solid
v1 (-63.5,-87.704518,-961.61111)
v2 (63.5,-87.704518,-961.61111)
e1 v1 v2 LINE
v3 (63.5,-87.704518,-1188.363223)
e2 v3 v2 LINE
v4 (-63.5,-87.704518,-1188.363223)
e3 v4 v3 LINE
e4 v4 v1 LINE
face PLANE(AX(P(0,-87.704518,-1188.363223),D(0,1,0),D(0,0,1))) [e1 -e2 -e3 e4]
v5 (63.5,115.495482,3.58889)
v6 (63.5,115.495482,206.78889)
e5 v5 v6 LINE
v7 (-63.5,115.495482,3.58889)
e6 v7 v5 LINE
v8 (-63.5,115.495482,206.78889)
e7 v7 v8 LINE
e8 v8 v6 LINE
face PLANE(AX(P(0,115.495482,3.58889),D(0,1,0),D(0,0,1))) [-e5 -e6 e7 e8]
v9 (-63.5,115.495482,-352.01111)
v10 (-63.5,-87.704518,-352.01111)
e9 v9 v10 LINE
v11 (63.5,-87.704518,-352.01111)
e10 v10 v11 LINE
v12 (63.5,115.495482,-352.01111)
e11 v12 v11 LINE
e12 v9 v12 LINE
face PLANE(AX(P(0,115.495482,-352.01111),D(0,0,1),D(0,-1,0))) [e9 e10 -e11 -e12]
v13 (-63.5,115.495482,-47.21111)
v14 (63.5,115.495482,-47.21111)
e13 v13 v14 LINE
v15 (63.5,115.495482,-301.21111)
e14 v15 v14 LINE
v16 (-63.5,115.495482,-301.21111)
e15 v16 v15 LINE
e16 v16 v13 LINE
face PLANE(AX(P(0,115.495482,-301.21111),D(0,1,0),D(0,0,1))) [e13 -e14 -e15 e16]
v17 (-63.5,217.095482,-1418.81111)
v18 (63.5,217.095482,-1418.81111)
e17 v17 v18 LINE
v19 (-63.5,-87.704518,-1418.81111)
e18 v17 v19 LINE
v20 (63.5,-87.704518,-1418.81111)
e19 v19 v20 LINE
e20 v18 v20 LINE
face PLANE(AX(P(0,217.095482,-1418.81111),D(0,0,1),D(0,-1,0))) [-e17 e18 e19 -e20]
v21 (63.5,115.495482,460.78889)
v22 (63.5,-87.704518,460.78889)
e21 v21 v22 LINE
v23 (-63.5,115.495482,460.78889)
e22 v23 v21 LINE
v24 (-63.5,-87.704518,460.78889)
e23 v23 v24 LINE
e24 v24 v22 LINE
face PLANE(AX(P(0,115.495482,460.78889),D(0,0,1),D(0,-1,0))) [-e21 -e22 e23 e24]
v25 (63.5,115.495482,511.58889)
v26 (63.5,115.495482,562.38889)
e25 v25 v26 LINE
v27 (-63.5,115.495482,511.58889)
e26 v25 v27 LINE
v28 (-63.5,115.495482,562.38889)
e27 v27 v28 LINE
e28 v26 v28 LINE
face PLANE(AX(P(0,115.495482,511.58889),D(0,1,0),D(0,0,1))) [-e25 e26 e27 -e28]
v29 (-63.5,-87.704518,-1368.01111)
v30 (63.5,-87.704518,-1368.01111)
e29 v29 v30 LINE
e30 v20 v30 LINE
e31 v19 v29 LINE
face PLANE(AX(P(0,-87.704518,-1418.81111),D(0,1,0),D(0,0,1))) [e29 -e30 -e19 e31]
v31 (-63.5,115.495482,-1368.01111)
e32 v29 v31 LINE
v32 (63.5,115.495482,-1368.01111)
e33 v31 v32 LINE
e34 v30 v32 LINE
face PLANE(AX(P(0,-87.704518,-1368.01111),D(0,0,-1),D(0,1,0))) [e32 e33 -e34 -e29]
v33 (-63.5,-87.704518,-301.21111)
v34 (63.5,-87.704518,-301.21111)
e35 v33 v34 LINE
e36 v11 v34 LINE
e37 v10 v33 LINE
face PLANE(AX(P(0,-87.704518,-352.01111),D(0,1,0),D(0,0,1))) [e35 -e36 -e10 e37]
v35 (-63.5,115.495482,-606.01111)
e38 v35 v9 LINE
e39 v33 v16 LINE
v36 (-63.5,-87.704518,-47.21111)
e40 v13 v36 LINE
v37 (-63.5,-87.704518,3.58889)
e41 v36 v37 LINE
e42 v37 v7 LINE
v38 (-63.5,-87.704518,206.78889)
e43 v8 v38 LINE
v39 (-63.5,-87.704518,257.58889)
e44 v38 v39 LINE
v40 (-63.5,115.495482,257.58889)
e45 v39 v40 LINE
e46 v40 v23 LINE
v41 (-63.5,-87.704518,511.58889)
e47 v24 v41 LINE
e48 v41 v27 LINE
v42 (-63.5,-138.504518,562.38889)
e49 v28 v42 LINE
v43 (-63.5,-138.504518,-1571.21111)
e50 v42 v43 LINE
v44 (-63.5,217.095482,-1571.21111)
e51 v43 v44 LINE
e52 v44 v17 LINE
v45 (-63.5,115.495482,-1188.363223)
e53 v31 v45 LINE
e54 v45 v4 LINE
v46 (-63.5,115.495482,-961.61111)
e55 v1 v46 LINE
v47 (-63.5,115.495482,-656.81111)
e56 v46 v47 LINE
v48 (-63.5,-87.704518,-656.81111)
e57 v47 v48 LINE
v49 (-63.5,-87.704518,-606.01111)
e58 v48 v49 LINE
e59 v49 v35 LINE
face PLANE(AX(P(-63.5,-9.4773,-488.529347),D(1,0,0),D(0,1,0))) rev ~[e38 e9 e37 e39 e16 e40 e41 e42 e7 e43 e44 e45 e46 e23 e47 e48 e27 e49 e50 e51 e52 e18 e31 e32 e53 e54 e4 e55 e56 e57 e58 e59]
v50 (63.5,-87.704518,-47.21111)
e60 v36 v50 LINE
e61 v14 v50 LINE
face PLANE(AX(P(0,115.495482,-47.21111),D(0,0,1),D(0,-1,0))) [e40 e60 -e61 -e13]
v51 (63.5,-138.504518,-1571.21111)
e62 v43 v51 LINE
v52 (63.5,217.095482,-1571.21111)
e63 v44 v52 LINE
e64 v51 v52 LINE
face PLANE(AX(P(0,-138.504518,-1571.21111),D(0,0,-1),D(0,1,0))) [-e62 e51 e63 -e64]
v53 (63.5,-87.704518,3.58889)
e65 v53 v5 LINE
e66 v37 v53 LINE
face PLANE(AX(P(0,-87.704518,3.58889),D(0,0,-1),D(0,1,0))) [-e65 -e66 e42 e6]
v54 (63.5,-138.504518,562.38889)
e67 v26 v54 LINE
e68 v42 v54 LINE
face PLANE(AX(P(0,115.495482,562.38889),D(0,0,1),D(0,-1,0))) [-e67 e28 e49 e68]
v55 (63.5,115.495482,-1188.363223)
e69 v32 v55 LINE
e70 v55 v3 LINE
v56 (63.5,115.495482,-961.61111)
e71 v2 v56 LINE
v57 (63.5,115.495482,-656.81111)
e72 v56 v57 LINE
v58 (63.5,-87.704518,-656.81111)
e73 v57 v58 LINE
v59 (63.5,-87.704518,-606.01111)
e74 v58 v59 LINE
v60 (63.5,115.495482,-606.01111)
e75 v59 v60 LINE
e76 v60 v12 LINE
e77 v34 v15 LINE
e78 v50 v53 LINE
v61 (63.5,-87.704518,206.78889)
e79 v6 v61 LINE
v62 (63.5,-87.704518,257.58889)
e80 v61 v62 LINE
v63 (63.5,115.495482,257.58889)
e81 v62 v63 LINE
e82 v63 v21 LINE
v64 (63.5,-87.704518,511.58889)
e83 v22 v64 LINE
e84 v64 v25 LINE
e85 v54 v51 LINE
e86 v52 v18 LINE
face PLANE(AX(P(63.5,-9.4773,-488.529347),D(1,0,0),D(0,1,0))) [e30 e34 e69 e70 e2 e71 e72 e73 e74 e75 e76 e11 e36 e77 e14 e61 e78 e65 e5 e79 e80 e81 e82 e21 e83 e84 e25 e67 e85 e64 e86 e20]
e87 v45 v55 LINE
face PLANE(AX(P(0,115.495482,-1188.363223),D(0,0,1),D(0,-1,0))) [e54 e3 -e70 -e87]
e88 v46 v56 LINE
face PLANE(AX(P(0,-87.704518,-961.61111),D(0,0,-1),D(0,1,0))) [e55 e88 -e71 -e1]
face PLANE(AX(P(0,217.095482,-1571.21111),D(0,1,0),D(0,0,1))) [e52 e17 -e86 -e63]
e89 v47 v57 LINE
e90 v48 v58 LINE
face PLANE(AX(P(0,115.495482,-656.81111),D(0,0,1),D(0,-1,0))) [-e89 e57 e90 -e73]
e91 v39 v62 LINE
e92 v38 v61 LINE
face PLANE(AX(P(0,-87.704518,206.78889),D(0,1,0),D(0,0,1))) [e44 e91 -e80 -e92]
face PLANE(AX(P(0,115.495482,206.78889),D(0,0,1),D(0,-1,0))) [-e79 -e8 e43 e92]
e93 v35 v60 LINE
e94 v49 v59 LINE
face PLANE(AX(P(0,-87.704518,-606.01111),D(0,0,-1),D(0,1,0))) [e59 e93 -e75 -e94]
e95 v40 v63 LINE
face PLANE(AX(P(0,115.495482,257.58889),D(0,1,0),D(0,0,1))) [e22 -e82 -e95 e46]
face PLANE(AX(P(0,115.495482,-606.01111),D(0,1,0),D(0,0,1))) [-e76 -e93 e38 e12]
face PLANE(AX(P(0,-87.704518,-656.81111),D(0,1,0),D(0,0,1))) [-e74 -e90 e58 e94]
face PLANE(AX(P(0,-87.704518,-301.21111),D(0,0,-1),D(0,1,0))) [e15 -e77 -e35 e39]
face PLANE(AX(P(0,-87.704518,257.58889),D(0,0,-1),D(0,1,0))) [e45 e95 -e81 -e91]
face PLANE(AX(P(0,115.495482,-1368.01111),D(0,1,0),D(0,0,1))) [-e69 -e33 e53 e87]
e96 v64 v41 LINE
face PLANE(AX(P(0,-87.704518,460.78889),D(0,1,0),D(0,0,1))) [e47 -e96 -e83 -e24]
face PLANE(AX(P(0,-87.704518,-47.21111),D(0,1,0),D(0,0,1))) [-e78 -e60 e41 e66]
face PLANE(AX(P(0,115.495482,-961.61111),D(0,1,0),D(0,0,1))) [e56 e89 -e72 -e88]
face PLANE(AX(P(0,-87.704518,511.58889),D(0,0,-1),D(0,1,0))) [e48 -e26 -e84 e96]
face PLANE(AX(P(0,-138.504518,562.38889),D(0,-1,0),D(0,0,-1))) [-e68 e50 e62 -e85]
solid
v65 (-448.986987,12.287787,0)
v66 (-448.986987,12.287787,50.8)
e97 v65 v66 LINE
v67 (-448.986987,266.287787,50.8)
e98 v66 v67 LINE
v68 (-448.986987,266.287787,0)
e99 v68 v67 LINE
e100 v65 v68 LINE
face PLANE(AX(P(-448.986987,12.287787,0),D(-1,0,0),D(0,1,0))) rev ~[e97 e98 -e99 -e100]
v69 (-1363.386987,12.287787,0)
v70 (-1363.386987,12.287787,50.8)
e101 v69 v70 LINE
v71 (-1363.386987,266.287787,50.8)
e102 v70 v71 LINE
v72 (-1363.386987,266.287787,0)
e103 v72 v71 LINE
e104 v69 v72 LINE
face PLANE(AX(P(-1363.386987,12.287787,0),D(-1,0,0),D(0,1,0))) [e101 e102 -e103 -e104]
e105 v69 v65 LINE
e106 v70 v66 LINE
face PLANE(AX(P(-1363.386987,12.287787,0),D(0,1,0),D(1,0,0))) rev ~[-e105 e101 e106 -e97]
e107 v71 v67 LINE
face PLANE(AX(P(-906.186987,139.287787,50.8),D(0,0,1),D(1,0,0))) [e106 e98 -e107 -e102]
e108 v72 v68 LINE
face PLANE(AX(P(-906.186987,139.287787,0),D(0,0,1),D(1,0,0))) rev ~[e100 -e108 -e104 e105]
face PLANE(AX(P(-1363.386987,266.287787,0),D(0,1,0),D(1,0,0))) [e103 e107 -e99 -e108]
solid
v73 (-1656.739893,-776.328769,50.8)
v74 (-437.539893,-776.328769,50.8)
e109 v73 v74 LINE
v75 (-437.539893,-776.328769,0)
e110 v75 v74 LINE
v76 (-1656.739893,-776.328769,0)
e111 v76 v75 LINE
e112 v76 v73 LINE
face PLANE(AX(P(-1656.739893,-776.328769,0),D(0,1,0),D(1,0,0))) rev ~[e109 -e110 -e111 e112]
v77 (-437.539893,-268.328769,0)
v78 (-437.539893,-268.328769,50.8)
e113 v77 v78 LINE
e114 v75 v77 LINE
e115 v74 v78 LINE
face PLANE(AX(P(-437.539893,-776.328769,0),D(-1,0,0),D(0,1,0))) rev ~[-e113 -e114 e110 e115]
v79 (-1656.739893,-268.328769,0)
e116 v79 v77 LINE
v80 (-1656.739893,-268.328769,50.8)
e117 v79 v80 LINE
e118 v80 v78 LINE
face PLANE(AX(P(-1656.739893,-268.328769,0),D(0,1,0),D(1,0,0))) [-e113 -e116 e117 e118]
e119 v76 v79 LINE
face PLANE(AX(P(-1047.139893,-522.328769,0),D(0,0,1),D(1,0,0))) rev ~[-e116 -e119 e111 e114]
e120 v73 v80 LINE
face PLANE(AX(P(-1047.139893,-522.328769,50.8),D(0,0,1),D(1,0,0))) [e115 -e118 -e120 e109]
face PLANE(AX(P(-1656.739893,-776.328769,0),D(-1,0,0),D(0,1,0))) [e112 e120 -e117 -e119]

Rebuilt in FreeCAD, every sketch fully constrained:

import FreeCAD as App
import Part
import Sketcher

V = App.Vector
Q = App.Units.Quantity

doc = App.newDocument("Part")
body = doc.addObject("PartDesign::Body", "Body")

# Sketch on YZ plane
sketch1 = body.newObject("Sketcher::SketchObject", "Sketch")
sketch1.AttachmentSupport = (doc.getObject("YZ_Plane"), [""])
sketch1.MapMode = "FlatFace"
sketch1.addGeometry([
    Part.LineSegment(V(115.495482, 562.38889, 0), V(-138.504518, 562.38889, 0)),  # 0
    Part.LineSegment(V(-138.504518, 562.38889, 0), V(-138.504518, -1571.21111, 0)),  # 1
    Part.LineSegment(V(-138.504518, -1571.21111, 0), V(217.095482, -1571.21111, 0)),  # 2
    Part.LineSegment(V(217.095482, -1571.21111, 0), V(217.095482, -1418.81111, 0)),  # 3
    Part.LineSegment(V(217.095482, -1418.81111, 0), V(-87.704518, -1418.81111, 0)),  # 4
    Part.LineSegment(V(-87.704518, -1418.81111, 0), V(-87.704518, -1368.01111, 0)),  # 5
    Part.LineSegment(V(-87.704518, -1368.01111, 0), V(115.495482, -1368.01111, 0)),  # 6
    Part.LineSegment(V(115.495482, -1368.01111, 0), V(115.495482, -1188.363223, 0)),  # 7
    Part.LineSegment(V(115.495482, -1188.363223, 0), V(-87.704518, -1188.363223, 0)),  # 8
    Part.LineSegment(V(-87.704518, -1188.363223, 0), V(-87.704518, -961.61111, 0)),  # 9
    Part.LineSegment(V(-87.704518, -961.61111, 0), V(115.495482, -961.61111, 0)),  # 10
    Part.LineSegment(V(115.495482, -961.61111, 0), V(115.495482, -656.81111, 0)),  # 11
    Part.LineSegment(V(115.495482, -656.81111, 0), V(-87.704518, -656.81111, 0)),  # 12
    Part.LineSegment(V(-87.704518, -656.81111, 0), V(-87.704518, -606.01111, 0)),  # 13
    Part.LineSegment(V(-87.704518, -606.01111, 0), V(115.495482, -606.01111, 0)),  # 14
    Part.LineSegment(V(115.495482, -606.01111, 0), V(115.495482, -352.01111, 0)),  # 15
    Part.LineSegment(V(115.495482, -352.01111, 0), V(-87.704518, -352.01111, 0)),  # 16
    Part.LineSegment(V(-87.704518, -352.01111, 0), V(-87.704518, -301.21111, 0)),  # 17
    Part.LineSegment(V(-87.704518, -301.21111, 0), V(115.495482, -301.21111, 0)),  # 18
    Part.LineSegment(V(115.495482, -301.21111, 0), V(115.495482, -47.21111, 0)),  # 19
    Part.LineSegment(V(115.495482, -47.21111, 0), V(-87.704518, -47.21111, 0)),  # 20
    Part.LineSegment(V(-87.704518, -47.21111, 0), V(-87.704518, 3.58889, 0)),  # 21
    Part.LineSegment(V(-87.704518, 3.58889, 0), V(115.495482, 3.58889, 0)),  # 22
    Part.LineSegment(V(115.495482, 3.58889, 0), V(115.495482, 206.78889, 0)),  # 23
    Part.LineSegment(V(115.495482, 206.78889, 0), V(-87.704518, 206.78889, 0)),  # 24
    Part.LineSegment(V(-87.704518, 206.78889, 0), V(-87.704518, 257.58889, 0)),  # 25
    Part.LineSegment(V(-87.704518, 257.58889, 0), V(115.495482, 257.58889, 0)),  # 26
    Part.LineSegment(V(115.495482, 257.58889, 0), V(115.495482, 460.78889, 0)),  # 27
    Part.LineSegment(V(115.495482, 460.78889, 0), V(-87.704518, 460.78889, 0)),  # 28
    Part.LineSegment(V(-87.704518, 460.78889, 0), V(-87.704518, 511.58889, 0)),  # 29
    Part.LineSegment(V(-87.704518, 511.58889, 0), V(115.495482, 511.58889, 0)),  # 30
    Part.LineSegment(V(115.495482, 511.58889, 0), V(115.495482, 562.38889, 0)),  # 31
], False)
sketch1.addConstraint([
    Sketcher.Constraint("Coincident", 0, 2, 1, 1),
    Sketcher.Constraint("Coincident", 1, 2, 2, 1),
    Sketcher.Constraint("Coincident", 2, 2, 3, 1),
    Sketcher.Constraint("Coincident", 3, 2, 4, 1),
    Sketcher.Constraint("Coincident", 4, 2, 5, 1),
    Sketcher.Constraint("Coincident", 5, 2, 6, 1),
    Sketcher.Constraint("Coincident", 6, 2, 7, 1),
    Sketcher.Constraint("Coincident", 7, 2, 8, 1),
    Sketcher.Constraint("Coincident", 8, 2, 9, 1),
    Sketcher.Constraint("Coincident", 9, 2, 10, 1),
    Sketcher.Constraint("Coincident", 10, 2, 11, 1),
    Sketcher.Constraint("Coincident", 11, 2, 12, 1),
    Sketcher.Constraint("Coincident", 12, 2, 13, 1),
    Sketcher.Constraint("Coincident", 13, 2, 14, 1),
    Sketcher.Constraint("Coincident", 14, 2, 15, 1),
    Sketcher.Constraint("Coincident", 15, 2, 16, 1),
    Sketcher.Constraint("Coincident", 16, 2, 17, 1),
    Sketcher.Constraint("Coincident", 17, 2, 18, 1),
    Sketcher.Constraint("Coincident", 18, 2, 19, 1),
    Sketcher.Constraint("Coincident", 19, 2, 20, 1),
    Sketcher.Constraint("Coincident", 20, 2, 21, 1),
    Sketcher.Constraint("Coincident", 21, 2, 22, 1),
    Sketcher.Constraint("Coincident", 22, 2, 23, 1),
    Sketcher.Constraint("Coincident", 23, 2, 24, 1),
    Sketcher.Constraint("Coincident", 24, 2, 25, 1),
    Sketcher.Constraint("Coincident", 25, 2, 26, 1),
    Sketcher.Constraint("Coincident", 26, 2, 27, 1),
    Sketcher.Constraint("Coincident", 27, 2, 28, 1),
    Sketcher.Constraint("Coincident", 28, 2, 29, 1),
    Sketcher.Constraint("Coincident", 29, 2, 30, 1),
    Sketcher.Constraint("Coincident", 30, 2, 31, 1),
    Sketcher.Constraint("Coincident", 31, 2, 0, 1),
    Sketcher.Constraint("Horizontal", 0),
    Sketcher.Constraint("Vertical", 1),
    Sketcher.Constraint("Horizontal", 2),
    Sketcher.Constraint("Vertical", 3),
    Sketcher.Constraint("Horizontal", 4),
    Sketcher.Constraint("Vertical", 5),
    Sketcher.Constraint("Horizontal", 6),
    Sketcher.Constraint("Vertical", 7),
    Sketcher.Constraint("Horizontal", 8),
    Sketcher.Constraint("Vertical", 9),
    Sketcher.Constraint("Horizontal", 10),
    Sketcher.Constraint("Vertical", 11),
    Sketcher.Constraint("Horizontal", 12),
    Sketcher.Constraint("Vertical", 13),
    Sketcher.Constraint("Horizontal", 14),
    Sketcher.Constraint("Vertical", 15),
    Sketcher.Constraint("Horizontal", 16),
    Sketcher.Constraint("Vertical", 17),
    Sketcher.Constraint("Horizontal", 18),
    Sketcher.Constraint("Vertical", 19),
    Sketcher.Constraint("Horizontal", 20),
    Sketcher.Constraint("Vertical", 21),
    Sketcher.Constraint("Horizontal", 22),
    Sketcher.Constraint("Vertical", 23),
    Sketcher.Constraint("Horizontal", 24),
    Sketcher.Constraint("Vertical", 25),
    Sketcher.Constraint("Horizontal", 26),
    Sketcher.Constraint("Vertical", 27),
    Sketcher.Constraint("Horizontal", 28),
    Sketcher.Constraint("Vertical", 29),
    Sketcher.Constraint("Horizontal", 30),
    Sketcher.Constraint("Vertical", 31),
    Sketcher.Constraint("Vertical", 5, 2, 8, 2),
    Sketcher.Constraint("Vertical", 7, 2, 10, 2),
    Sketcher.Constraint("Vertical", 9, 2, 12, 2),
    Sketcher.Constraint("Vertical", 11, 2, 14, 2),
    Sketcher.Constraint("Vertical", 13, 2, 16, 2),
    Sketcher.Constraint("Vertical", 15, 2, 18, 2),
    Sketcher.Constraint("Vertical", 17, 2, 20, 2),
    Sketcher.Constraint("Vertical", 19, 2, 22, 2),
    Sketcher.Constraint("Vertical", 21, 2, 24, 2),
    Sketcher.Constraint("Vertical", 23, 2, 26, 2),
    Sketcher.Constraint("Vertical", 25, 2, 28, 2),
    Sketcher.Constraint("Vertical", 27, 2, 30, 2),
    Sketcher.Constraint("Equal", 4, 11),
    Sketcher.Constraint("Equal", 5, 13),
    Sketcher.Constraint("Equal", 0, 15),
    Sketcher.Constraint("Equal", 13, 17),
    Sketcher.Constraint("Equal", 15, 19),
    Sketcher.Constraint("Equal", 17, 21),
    Sketcher.Constraint("Equal", 30, 23),
    Sketcher.Constraint("Equal", 21, 25),
    Sketcher.Constraint("Equal", 23, 27),
    Sketcher.Constraint("Equal", 25, 29),
    Sketcher.Constraint("Equal", 29, 31),
    Sketcher.Constraint("DistanceX", 0, 2, 0, 1, Q("10 in")),
    Sketcher.Constraint("DistanceX", 2, 1, 2, 2, Q("14 in")),
    Sketcher.Constraint("DistanceX", 4, 2, 4, 1, Q("12 in")),
    Sketcher.Constraint("DistanceY", 1, 2, 1, 1, Q("84 in")),
    Sketcher.Constraint("DistanceY", 3, 1, 3, 2, Q("6 in")),
    Sketcher.Constraint("DistanceY", 5, 1, 5, 2, Q("2 in")),
    Sketcher.Constraint("DistanceY", 7, 1, 7, 2, Q("179.647887 mm")),
    Sketcher.Constraint("DistanceY", -1, 1, 0, 2, Q("562.38889 mm")),
    Sketcher.Constraint("DistanceX", -1, 1, 2, 2, Q("217.095482 mm")),
])
pad1 = body.newObject("PartDesign::Pad", "Pad")
pad1.Profile = sketch1
pad1.Length = Q("5 in")
pad1.Midplane = True
body2 = doc.addObject("PartDesign::Body", "Body001")

# Sketch on XY plane
sketch2 = body2.newObject("Sketcher::SketchObject", "Sketch001")
sketch2.AttachmentSupport = (doc.getObject("XY_Plane001"), [""])
sketch2.MapMode = "FlatFace"
sketch2.addGeometry([
    Part.LineSegment(V(-1363.386987, 266.287787, 0), V(-1363.386987, 12.287787, 0)),
    Part.LineSegment(V(-1363.386987, 12.287787, 0), V(-448.986987, 12.287787, 0)),
    Part.LineSegment(V(-448.986987, 12.287787, 0), V(-448.986987, 266.287787, 0)),
    Part.LineSegment(V(-448.986987, 266.287787, 0), V(-1363.386987, 266.287787, 0)),
], False)
sketch2.addConstraint([
    Sketcher.Constraint("Coincident", 0, 2, 1, 1),
    Sketcher.Constraint("Coincident", 1, 2, 2, 1),
    Sketcher.Constraint("Coincident", 2, 2, 3, 1),
    Sketcher.Constraint("Coincident", 3, 2, 0, 1),
    Sketcher.Constraint("Vertical", 0),
    Sketcher.Constraint("Horizontal", 1),
    Sketcher.Constraint("Vertical", 2),
    Sketcher.Constraint("Horizontal", 3),
    Sketcher.Constraint("DistanceX", 1, 1, 1, 2, Q("36 in")),
    Sketcher.Constraint("DistanceY", 0, 2, 0, 1, Q("10 in")),
    Sketcher.Constraint("DistanceX", 0, 2, -1, 1, Q("1363.386987 mm")),
    Sketcher.Constraint("DistanceY", -1, 1, 0, 2, Q("12.287787 mm")),
])
pad2 = body2.newObject("PartDesign::Pad", "Pad001")
pad2.Profile = sketch2
pad2.Length = Q("2 in")
body3 = doc.addObject("PartDesign::Body", "Body002")

# Sketch on XY plane
sketch3 = body3.newObject("Sketcher::SketchObject", "Sketch002")
sketch3.AttachmentSupport = (doc.getObject("XY_Plane002"), [""])
sketch3.MapMode = "FlatFace"
sketch3.addGeometry([
    Part.LineSegment(V(-1656.739893, -268.328769, 0), V(-1656.739893, -776.328769, 0)),
    Part.LineSegment(V(-1656.739893, -776.328769, 0), V(-437.539893, -776.328769, 0)),
    Part.LineSegment(V(-437.539893, -776.328769, 0), V(-437.539893, -268.328769, 0)),
    Part.LineSegment(V(-437.539893, -268.328769, 0), V(-1656.739893, -268.328769, 0)),
], False)
sketch3.addConstraint([
    Sketcher.Constraint("Coincident", 0, 2, 1, 1),
    Sketcher.Constraint("Coincident", 1, 2, 2, 1),
    Sketcher.Constraint("Coincident", 2, 2, 3, 1),
    Sketcher.Constraint("Coincident", 3, 2, 0, 1),
    Sketcher.Constraint("Vertical", 0),
    Sketcher.Constraint("Horizontal", 1),
    Sketcher.Constraint("Vertical", 2),
    Sketcher.Constraint("Horizontal", 3),
    Sketcher.Constraint("DistanceX", 1, 1, 1, 2, Q("48 in")),
    Sketcher.Constraint("DistanceY", 0, 2, 0, 1, Q("20 in")),
    Sketcher.Constraint("DistanceY", 0, 2, -1, 1, Q("776.328769 mm")),
    Sketcher.Constraint("DistanceX", 0, 2, -1, 1, Q("1656.739893 mm")),
])
pad3 = body3.newObject("PartDesign::Pad", "Pad002")
pad3.Profile = sketch3
pad3.Length = Q("2 in")

doc.recompute()
